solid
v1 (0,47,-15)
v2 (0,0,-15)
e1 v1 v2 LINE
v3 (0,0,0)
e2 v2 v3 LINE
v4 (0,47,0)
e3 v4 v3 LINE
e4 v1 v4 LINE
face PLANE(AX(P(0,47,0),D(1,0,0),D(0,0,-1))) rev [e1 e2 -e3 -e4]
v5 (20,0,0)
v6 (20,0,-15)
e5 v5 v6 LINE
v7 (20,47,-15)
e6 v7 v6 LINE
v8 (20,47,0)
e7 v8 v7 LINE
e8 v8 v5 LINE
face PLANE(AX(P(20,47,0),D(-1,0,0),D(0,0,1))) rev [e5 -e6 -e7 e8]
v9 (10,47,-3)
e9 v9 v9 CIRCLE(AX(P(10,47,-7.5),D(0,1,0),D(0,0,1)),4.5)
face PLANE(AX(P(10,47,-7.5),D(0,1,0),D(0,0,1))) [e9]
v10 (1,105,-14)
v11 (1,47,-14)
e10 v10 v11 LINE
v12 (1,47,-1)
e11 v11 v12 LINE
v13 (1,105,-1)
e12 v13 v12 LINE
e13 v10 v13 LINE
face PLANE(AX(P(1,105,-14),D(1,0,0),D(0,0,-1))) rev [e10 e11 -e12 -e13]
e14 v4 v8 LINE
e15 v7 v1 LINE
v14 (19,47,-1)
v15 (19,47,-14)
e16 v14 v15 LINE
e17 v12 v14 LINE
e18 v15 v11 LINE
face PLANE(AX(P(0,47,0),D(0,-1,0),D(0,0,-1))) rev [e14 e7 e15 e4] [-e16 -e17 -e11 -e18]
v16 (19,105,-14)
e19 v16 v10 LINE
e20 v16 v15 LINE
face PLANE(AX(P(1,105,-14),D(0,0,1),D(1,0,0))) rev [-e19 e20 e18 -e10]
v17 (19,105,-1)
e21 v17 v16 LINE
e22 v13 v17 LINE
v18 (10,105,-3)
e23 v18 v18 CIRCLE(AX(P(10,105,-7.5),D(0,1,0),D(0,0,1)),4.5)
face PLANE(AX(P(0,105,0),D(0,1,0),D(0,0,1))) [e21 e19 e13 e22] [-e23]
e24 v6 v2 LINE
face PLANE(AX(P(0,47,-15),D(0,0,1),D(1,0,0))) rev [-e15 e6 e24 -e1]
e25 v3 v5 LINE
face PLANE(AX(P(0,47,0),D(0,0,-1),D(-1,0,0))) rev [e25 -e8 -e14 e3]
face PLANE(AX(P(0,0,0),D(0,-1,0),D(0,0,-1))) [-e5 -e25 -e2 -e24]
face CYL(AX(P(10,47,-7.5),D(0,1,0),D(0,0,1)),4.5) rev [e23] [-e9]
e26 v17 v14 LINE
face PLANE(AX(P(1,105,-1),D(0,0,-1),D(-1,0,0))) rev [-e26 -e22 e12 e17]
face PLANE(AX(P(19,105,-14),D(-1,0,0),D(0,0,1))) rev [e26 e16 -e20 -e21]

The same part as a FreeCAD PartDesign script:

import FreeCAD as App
import Part
import Sketcher

V = App.Vector


def add_polygon(sketch, points):
    """Adds a closed chain of lines whose ends are joined by coincident constraints."""
    first, n = sketch.GeometryCount, len(points)
    for a, b in zip(points, points[1:] + points[:1]):
        sketch.addGeometry(Part.LineSegment(App.Vector(*a, 0), App.Vector(*b, 0)), False)
    for i in range(n):
        sketch.addConstraint(Sketcher.Constraint("Coincident", first + i, 2, first + (i + 1) % n, 1))

doc = App.newDocument("Part")
body = doc.addObject("PartDesign::Body", "Body")

# Sketch on XZ plane
sketch1 = body.newObject("Sketcher::SketchObject", "Sketch")
sketch1.AttachmentSupport = (doc.getObject("XZ_Plane"), [""])
sketch1.MapMode = "FlatFace"
add_polygon(sketch1, [(0, -15), (0, 0), (20, 0), (20, -15)])  # lines 0-3
sketch1.addConstraint([
    Sketcher.Constraint("Vertical", 0),
    Sketcher.Constraint("Horizontal", 1),
    Sketcher.Constraint("Vertical", 2),
    Sketcher.Constraint("Horizontal", 3),
    Sketcher.Constraint("Coincident", 0, 2, -1, 1),
    Sketcher.Constraint("DistanceX", 1, 1, 1, 2, 20.0),
    Sketcher.Constraint("DistanceY", 0, 1, 0, 2, 15.0),
])
pad1 = body.newObject("PartDesign::Pad", "Pad")
pad1.Profile = sketch1
pad1.Length = 47
pad1.Reversed = True

# Sketch on XZ plane
sketch2 = body.newObject("Sketcher::SketchObject", "Sketch001")
sketch2.AttachmentSupport = (doc.getObject("XZ_Plane"), [""])
sketch2.MapMode = "FlatFace"
sketch2.AttachmentOffset = App.Placement(V(0, 0, -47), App.Rotation())
add_polygon(sketch2, [(1, -14), (1, -1), (19, -1), (19, -14)])  # lines 0-3
sketch2.addConstraint([
    Sketcher.Constraint("Vertical", 0),
    Sketcher.Constraint("Horizontal", 1),
    Sketcher.Constraint("Vertical", 2),
    Sketcher.Constraint("Horizontal", 3),
    Sketcher.Constraint("DistanceX", 1, 1, 1, 2, 18.0),
    Sketcher.Constraint("DistanceY", 0, 1, 0, 2, 13.0),
    Sketcher.Constraint("DistanceX", -1, 1, 0, 2, 1.0),
    Sketcher.Constraint("DistanceY", 0, 2, -1, 1, 1.0),
])
pad2 = body.newObject("PartDesign::Pad", "Pad001")
pad2.Profile = sketch2
pad2.Length = 58
pad2.Reversed = True

# Sketch on XZ plane
sketch3 = body.newObject("Sketcher::SketchObject", "Sketch002")
sketch3.AttachmentSupport = (doc.getObject("XZ_Plane"), [""])
sketch3.MapMode = "FlatFace"
sketch3.AttachmentOffset = App.Placement(V(0, 0, -105), App.Rotation())
sketch3.addGeometry(Part.Circle(V(10, -7.5, 0), V(0, 0, 1), 4.5), False)
sketch3.addConstraint([
    Sketcher.Constraint("Diameter", 0, 9.0),
    Sketcher.Constraint("DistanceX", -1, 1, 0, 3, 10.0),
    Sketcher.Constraint("DistanceY", 0, 3, -1, 1, 7.5),
])
pocket1 = body.newObject("PartDesign::Pocket", "Pocket")
pocket1.Profile = sketch3
pocket1.Length = 58
pocket1.Reversed = True

doc.recompute()
